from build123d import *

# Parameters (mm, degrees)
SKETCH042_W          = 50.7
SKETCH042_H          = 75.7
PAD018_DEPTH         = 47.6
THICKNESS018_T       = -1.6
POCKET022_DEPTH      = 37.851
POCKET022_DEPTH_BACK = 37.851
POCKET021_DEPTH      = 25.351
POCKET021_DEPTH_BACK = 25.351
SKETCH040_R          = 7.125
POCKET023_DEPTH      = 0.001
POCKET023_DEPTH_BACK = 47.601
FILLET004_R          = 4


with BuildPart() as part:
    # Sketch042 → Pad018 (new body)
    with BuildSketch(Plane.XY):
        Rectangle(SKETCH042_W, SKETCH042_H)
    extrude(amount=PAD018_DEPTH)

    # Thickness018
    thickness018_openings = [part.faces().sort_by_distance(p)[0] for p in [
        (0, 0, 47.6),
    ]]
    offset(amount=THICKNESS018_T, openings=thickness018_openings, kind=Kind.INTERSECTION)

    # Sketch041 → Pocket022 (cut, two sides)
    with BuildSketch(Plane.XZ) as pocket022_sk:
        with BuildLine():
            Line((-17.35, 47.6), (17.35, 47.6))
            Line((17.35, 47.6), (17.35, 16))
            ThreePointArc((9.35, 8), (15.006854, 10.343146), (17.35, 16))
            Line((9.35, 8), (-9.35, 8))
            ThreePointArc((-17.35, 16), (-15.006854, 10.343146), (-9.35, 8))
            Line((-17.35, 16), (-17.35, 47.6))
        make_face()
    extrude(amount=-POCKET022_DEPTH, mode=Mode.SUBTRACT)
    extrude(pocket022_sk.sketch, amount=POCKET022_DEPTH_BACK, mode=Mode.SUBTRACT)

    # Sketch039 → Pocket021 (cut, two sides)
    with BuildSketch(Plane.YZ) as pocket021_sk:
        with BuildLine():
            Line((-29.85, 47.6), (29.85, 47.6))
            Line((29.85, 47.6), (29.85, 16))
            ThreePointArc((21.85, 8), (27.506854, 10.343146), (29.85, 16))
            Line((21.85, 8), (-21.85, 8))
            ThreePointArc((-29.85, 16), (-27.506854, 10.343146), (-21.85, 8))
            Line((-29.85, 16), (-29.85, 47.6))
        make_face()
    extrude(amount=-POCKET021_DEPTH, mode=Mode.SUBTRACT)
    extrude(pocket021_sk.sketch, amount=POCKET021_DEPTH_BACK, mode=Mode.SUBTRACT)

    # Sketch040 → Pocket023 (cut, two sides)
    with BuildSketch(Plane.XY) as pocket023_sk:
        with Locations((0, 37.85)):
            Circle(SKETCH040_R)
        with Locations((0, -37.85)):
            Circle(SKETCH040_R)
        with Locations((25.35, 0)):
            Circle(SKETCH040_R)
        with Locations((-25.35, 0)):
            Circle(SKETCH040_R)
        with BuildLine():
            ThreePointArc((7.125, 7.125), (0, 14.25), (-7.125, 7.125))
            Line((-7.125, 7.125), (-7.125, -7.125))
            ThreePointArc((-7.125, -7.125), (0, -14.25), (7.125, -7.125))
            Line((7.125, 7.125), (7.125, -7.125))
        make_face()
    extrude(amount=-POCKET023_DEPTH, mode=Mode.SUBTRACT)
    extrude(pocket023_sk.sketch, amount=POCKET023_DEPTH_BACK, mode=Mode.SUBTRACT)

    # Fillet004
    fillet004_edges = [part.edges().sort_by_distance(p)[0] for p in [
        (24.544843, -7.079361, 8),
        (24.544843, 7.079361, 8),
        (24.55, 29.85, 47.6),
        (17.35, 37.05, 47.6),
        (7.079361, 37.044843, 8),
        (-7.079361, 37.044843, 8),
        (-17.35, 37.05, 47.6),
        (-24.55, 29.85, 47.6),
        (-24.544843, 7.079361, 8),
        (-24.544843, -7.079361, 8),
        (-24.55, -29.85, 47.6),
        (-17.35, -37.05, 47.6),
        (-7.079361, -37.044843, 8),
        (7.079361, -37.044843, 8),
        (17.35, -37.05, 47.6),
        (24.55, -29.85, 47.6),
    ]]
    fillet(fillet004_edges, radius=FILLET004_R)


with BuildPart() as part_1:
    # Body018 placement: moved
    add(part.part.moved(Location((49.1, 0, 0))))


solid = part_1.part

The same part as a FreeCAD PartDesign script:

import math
import FreeCAD as App
import Part
import Sketcher
from FreeCAD import Vector


def edges_at(feature, points):
    """Names of the edges that pass closest to the given points."""
    edges = feature.Shape.Edges
    near = lambda p: min(range(len(edges)), key=lambda i: edges[i].distToShape(Part.Vertex(*p))[0])
    return sorted({f"Edge{near(p) + 1}" for p in points})


def faces_at(feature, points):
    """Names of the faces that lie closest to the given points."""
    faces = feature.Shape.Faces
    near = lambda p: min(range(len(faces)), key=lambda i: faces[i].distToShape(Part.Vertex(*p))[0])
    return sorted({f"Face{near(p) + 1}" for p in points})

doc = App.newDocument("Part")
body = doc.addObject("PartDesign::Body", "Body")

sketch1 = body.newObject("Sketcher::SketchObject", "Sketch")
sketch1.AttachmentSupport = (doc.getObject("XY_Plane"), [""])
sketch1.MapMode = "FlatFace"
sketch1.addGeometry([
    Part.LineSegment(Vector(-25, 38, 0), Vector(-25, -38, 0)),
    Part.LineSegment(Vector(-25, -38, 0), Vector(25, -38, 0)),
    Part.LineSegment(Vector(25, -38, 0), Vector(25, 38, 0)),
    Part.LineSegment(Vector(25, 38, 0), Vector(-25, 38, 0)),
], False)
sketch1.addConstraint([
    Sketcher.Constraint("Coincident", 0, 2, 1, 1),
    Sketcher.Constraint("Coincident", 1, 2, 2, 1),
    Sketcher.Constraint("Coincident", 2, 2, 3, 1),
    Sketcher.Constraint("Coincident", 3, 2, 0, 1),
    Sketcher.Constraint("Vertical", 0),
    Sketcher.Constraint("Horizontal", 1),
    Sketcher.Constraint("Vertical", 2),
    Sketcher.Constraint("Horizontal", 3),
    Sketcher.Constraint("Symmetric", 0, 2, 2, 2, -1, 1),
    Sketcher.Constraint("DistanceX", 1, 1, 1, 2, 50.7),
    Sketcher.Constraint("DistanceY", 0, 2, 0, 1, 75.7),
])
pad1 = body.newObject("PartDesign::Pad", "Pad")
pad1.Profile = sketch1
pad1.Length = 47.6
doc.recompute()

thickness = body.newObject("PartDesign::Thickness", "Thickness")
thickness.Base = (pad1, faces_at(pad1, [(0, 0, 47.6)]))
thickness.Value = 1.6
thickness.Reversed = True
thickness.Join = "Intersection"

sketch2 = body.newObject("Sketcher::SketchObject", "Sketch001")
sketch2.AttachmentSupport = (doc.getObject("XZ_Plane"), [""])
sketch2.MapMode = "FlatFace"
sketch2.addGeometry([
    Part.LineSegment(Vector(17, 48, 0), Vector(-17, 48, 0)),
    Part.LineSegment(Vector(-17, 48, 0), Vector(-17, 16, 0)),
    Part.ArcOfCircle(Part.Circle(Vector(-9, 16, 0), Vector(0, 0, 1), 8), math.radians(-180), math.radians(-90)),
    Part.LineSegment(Vector(-9, 8, 0), Vector(9, 8, 0)),
    Part.ArcOfCircle(Part.Circle(Vector(9, 16, 0), Vector(0, 0, 1), 8), math.radians(-90), math.radians(0)),
    Part.LineSegment(Vector(17, 16, 0), Vector(17, 48, 0)),
], False)
sketch2.addConstraint([
    Sketcher.Constraint("Coincident", 0, 2, 1, 1),
    Sketcher.Constraint("Tangent", 1, 2, 2, 1),
    Sketcher.Constraint("Tangent", 2, 2, 3, 1),
    Sketcher.Constraint("Tangent", 3, 2, 4, 1),
    Sketcher.Constraint("Tangent", 4, 2, 5, 1),
    Sketcher.Constraint("Coincident", 5, 2, 0, 1),
    Sketcher.Constraint("Horizontal", 0),
    Sketcher.Constraint("Vertical", 1),
    Sketcher.Constraint("Horizontal", 3),
    Sketcher.Constraint("Vertical", 5),
    Sketcher.Constraint("Equal", 2, 4),
    Sketcher.Constraint("Radius", 2, 8.000001),
    Sketcher.Constraint("DistanceX", 0, 2, 0, 1, 34.7),
    Sketcher.Constraint("DistanceY", 1, 2, 1, 1, 31.6),
    Sketcher.Constraint("DistanceY", -1, 1, 2, 3, 16.000001),
    Sketcher.Constraint("DistanceX", 2, 3, -1, 1, 9.349999),
])
pocket1 = body.newObject("PartDesign::Pocket", "Pocket")
pocket1.Profile = sketch2
pocket1.Type = "ThroughAll"
pocket1.Midplane = True

sketch3 = body.newObject("Sketcher::SketchObject", "Sketch002")
sketch3.AttachmentSupport = (doc.getObject("YZ_Plane"), [""])
sketch3.MapMode = "FlatFace"
sketch3.addGeometry([
    Part.LineSegment(Vector(30, 48, 0), Vector(-30, 48, 0)),
    Part.LineSegment(Vector(-30, 48, 0), Vector(-30, 16, 0)),
    Part.ArcOfCircle(Part.Circle(Vector(-22, 16, 0), Vector(0, 0, 1), 8), math.radians(-180), math.radians(-90)),
    Part.LineSegment(Vector(-22, 8, 0), Vector(22, 8, 0)),
    Part.ArcOfCircle(Part.Circle(Vector(22, 16, 0), Vector(0, 0, 1), 8), math.radians(-90), math.radians(0)),
    Part.LineSegment(Vector(30, 16, 0), Vector(30, 48, 0)),
], False)
sketch3.addConstraint([
    Sketcher.Constraint("Coincident", 0, 2, 1, 1),
    Sketcher.Constraint("Tangent", 1, 2, 2, 1),
    Sketcher.Constraint("Tangent", 2, 2, 3, 1),
    Sketcher.Constraint("Tangent", 3, 2, 4, 1),
    Sketcher.Constraint("Tangent", 4, 2, 5, 1),
    Sketcher.Constraint("Coincident", 5, 2, 0, 1),
    Sketcher.Constraint("Horizontal", 0),
    Sketcher.Constraint("Vertical", 1),
    Sketcher.Constraint("Horizontal", 3),
    Sketcher.Constraint("Vertical", 5),
    Sketcher.Constraint("Equal", 2, 4),
    Sketcher.Constraint("Radius", 2, 8.000001),
    Sketcher.Constraint("DistanceX", 0, 2, 0, 1, 59.7),
    Sketcher.Constraint("DistanceY", 1, 2, 1, 1, 31.6),
    Sketcher.Constraint("DistanceY", -1, 1, 2, 3, 16.000001),
    Sketcher.Constraint("DistanceX", 2, 3, -1, 1, 21.849999),
])
pocket2 = body.newObject("PartDesign::Pocket", "Pocket001")
pocket2.Profile = sketch3
pocket2.Type = "ThroughAll"
pocket2.Midplane = True

sketch4 = body.newObject("Sketcher::SketchObject", "Sketch003")
sketch4.AttachmentSupport = (doc.getObject("XY_Plane"), [""])
sketch4.MapMode = "FlatFace"
sketch4.addGeometry([
    Part.Circle(Vector(0, 38, 0), Vector(0, 0, 1), 7),
    Part.Circle(Vector(0, -38, 0), Vector(0, 0, 1), 7),
    Part.Circle(Vector(25, 0, 0), Vector(0, 0, 1), 7),
    Part.Circle(Vector(-25, 0, 0), Vector(0, 0, 1), 7),
    Part.ArcOfCircle(Part.Circle(Vector(0, 7, 0), Vector(0, 0, 1), 7), math.radians(0), math.radians(180)),
    Part.LineSegment(Vector(-7, 7, 0), Vector(-7, -7, 0)),
    Part.ArcOfCircle(Part.Circle(Vector(0, -7, 0), Vector(0, 0, 1), 7), math.radians(180), math.radians(360)),
    Part.LineSegment(Vector(7, -7, 0), Vector(7, 7, 0)),
], False)
sketch4.addConstraint([
    Sketcher.Constraint("Tangent", 4, 2, 5, 1),
    Sketcher.Constraint("Tangent", 5, 2, 6, 1),
    Sketcher.Constraint("Tangent", 6, 2, 7, 1),
    Sketcher.Constraint("Tangent", 7, 2, 4, 1),
    Sketcher.Constraint("Vertical", 5),
    Sketcher.Constraint("Vertical", 7),
    Sketcher.Constraint("Equal", 0, 1),
    Sketcher.Constraint("Equal", 1, 2),
    Sketcher.Constraint("Equal", 2, 3),
    Sketcher.Constraint("Equal", 3, 4),
    Sketcher.Constraint("Symmetric", 0, 3, 1, 3, -1, 1),
    Sketcher.Constraint("Symmetric", 2, 3, 3, 3, -1, 1),
    Sketcher.Constraint("Symmetric", 4, 3, 6, 3, -1, 1),
    Sketcher.Constraint("PointOnObject", 0, 3, -2),
    Sketcher.Constraint("PointOnObject", 2, 3, -1),
    Sketcher.Constraint("Diameter", 0, 14.25),
    Sketcher.Constraint("DistanceY", 5, 2, 5, 1, 14.25),
    Sketcher.Constraint("DistanceY", 1, 3, 0, 3, 75.7),
    Sketcher.Constraint("DistanceX", 3, 3, 2, 3, 50.7),
])
pocket3 = body.newObject("PartDesign::Pocket", "Pocket002")
pocket3.Profile = sketch4
pocket3.Type = "ThroughAll"
pocket3.Midplane = True
doc.recompute()

fillet = body.newObject("PartDesign::Fillet", "Fillet")
fillet.Base = (pocket3, edges_at(pocket3, [
    (24.545, -7.079, 8),
    (24.545, 7.079, 8),
    (24.55, 29.85, 47.6),
    (17.35, 37.05, 47.6),
    (7.079, 37.045, 8),
    (-7.079, 37.045, 8),
    (-17.35, 37.05, 47.6),
    (-24.55, 29.85, 47.6),
    (-24.545, 7.079, 8),
    (-24.545, -7.079, 8),
    (-24.55, -29.85, 47.6),
    (-17.35, -37.05, 47.6),
    (-7.079, -37.045, 8),
    (7.079, -37.045, 8),
    (17.35, -37.05, 47.6),
    (24.55, -29.85, 47.6),
]))
fillet.Radius = 4
body2 = doc.addObject("PartDesign::Body", "Body001")
doc.recompute()

body.Placement = App.Placement(Vector(49.1, 0, 0), App.Rotation(Vector(0, 0, 1), 0))
boolean = body2.newObject("PartDesign::Boolean", "Boolean")
boolean.Type = "Fuse"
boolean.addObjects([body])

doc.recompute()
